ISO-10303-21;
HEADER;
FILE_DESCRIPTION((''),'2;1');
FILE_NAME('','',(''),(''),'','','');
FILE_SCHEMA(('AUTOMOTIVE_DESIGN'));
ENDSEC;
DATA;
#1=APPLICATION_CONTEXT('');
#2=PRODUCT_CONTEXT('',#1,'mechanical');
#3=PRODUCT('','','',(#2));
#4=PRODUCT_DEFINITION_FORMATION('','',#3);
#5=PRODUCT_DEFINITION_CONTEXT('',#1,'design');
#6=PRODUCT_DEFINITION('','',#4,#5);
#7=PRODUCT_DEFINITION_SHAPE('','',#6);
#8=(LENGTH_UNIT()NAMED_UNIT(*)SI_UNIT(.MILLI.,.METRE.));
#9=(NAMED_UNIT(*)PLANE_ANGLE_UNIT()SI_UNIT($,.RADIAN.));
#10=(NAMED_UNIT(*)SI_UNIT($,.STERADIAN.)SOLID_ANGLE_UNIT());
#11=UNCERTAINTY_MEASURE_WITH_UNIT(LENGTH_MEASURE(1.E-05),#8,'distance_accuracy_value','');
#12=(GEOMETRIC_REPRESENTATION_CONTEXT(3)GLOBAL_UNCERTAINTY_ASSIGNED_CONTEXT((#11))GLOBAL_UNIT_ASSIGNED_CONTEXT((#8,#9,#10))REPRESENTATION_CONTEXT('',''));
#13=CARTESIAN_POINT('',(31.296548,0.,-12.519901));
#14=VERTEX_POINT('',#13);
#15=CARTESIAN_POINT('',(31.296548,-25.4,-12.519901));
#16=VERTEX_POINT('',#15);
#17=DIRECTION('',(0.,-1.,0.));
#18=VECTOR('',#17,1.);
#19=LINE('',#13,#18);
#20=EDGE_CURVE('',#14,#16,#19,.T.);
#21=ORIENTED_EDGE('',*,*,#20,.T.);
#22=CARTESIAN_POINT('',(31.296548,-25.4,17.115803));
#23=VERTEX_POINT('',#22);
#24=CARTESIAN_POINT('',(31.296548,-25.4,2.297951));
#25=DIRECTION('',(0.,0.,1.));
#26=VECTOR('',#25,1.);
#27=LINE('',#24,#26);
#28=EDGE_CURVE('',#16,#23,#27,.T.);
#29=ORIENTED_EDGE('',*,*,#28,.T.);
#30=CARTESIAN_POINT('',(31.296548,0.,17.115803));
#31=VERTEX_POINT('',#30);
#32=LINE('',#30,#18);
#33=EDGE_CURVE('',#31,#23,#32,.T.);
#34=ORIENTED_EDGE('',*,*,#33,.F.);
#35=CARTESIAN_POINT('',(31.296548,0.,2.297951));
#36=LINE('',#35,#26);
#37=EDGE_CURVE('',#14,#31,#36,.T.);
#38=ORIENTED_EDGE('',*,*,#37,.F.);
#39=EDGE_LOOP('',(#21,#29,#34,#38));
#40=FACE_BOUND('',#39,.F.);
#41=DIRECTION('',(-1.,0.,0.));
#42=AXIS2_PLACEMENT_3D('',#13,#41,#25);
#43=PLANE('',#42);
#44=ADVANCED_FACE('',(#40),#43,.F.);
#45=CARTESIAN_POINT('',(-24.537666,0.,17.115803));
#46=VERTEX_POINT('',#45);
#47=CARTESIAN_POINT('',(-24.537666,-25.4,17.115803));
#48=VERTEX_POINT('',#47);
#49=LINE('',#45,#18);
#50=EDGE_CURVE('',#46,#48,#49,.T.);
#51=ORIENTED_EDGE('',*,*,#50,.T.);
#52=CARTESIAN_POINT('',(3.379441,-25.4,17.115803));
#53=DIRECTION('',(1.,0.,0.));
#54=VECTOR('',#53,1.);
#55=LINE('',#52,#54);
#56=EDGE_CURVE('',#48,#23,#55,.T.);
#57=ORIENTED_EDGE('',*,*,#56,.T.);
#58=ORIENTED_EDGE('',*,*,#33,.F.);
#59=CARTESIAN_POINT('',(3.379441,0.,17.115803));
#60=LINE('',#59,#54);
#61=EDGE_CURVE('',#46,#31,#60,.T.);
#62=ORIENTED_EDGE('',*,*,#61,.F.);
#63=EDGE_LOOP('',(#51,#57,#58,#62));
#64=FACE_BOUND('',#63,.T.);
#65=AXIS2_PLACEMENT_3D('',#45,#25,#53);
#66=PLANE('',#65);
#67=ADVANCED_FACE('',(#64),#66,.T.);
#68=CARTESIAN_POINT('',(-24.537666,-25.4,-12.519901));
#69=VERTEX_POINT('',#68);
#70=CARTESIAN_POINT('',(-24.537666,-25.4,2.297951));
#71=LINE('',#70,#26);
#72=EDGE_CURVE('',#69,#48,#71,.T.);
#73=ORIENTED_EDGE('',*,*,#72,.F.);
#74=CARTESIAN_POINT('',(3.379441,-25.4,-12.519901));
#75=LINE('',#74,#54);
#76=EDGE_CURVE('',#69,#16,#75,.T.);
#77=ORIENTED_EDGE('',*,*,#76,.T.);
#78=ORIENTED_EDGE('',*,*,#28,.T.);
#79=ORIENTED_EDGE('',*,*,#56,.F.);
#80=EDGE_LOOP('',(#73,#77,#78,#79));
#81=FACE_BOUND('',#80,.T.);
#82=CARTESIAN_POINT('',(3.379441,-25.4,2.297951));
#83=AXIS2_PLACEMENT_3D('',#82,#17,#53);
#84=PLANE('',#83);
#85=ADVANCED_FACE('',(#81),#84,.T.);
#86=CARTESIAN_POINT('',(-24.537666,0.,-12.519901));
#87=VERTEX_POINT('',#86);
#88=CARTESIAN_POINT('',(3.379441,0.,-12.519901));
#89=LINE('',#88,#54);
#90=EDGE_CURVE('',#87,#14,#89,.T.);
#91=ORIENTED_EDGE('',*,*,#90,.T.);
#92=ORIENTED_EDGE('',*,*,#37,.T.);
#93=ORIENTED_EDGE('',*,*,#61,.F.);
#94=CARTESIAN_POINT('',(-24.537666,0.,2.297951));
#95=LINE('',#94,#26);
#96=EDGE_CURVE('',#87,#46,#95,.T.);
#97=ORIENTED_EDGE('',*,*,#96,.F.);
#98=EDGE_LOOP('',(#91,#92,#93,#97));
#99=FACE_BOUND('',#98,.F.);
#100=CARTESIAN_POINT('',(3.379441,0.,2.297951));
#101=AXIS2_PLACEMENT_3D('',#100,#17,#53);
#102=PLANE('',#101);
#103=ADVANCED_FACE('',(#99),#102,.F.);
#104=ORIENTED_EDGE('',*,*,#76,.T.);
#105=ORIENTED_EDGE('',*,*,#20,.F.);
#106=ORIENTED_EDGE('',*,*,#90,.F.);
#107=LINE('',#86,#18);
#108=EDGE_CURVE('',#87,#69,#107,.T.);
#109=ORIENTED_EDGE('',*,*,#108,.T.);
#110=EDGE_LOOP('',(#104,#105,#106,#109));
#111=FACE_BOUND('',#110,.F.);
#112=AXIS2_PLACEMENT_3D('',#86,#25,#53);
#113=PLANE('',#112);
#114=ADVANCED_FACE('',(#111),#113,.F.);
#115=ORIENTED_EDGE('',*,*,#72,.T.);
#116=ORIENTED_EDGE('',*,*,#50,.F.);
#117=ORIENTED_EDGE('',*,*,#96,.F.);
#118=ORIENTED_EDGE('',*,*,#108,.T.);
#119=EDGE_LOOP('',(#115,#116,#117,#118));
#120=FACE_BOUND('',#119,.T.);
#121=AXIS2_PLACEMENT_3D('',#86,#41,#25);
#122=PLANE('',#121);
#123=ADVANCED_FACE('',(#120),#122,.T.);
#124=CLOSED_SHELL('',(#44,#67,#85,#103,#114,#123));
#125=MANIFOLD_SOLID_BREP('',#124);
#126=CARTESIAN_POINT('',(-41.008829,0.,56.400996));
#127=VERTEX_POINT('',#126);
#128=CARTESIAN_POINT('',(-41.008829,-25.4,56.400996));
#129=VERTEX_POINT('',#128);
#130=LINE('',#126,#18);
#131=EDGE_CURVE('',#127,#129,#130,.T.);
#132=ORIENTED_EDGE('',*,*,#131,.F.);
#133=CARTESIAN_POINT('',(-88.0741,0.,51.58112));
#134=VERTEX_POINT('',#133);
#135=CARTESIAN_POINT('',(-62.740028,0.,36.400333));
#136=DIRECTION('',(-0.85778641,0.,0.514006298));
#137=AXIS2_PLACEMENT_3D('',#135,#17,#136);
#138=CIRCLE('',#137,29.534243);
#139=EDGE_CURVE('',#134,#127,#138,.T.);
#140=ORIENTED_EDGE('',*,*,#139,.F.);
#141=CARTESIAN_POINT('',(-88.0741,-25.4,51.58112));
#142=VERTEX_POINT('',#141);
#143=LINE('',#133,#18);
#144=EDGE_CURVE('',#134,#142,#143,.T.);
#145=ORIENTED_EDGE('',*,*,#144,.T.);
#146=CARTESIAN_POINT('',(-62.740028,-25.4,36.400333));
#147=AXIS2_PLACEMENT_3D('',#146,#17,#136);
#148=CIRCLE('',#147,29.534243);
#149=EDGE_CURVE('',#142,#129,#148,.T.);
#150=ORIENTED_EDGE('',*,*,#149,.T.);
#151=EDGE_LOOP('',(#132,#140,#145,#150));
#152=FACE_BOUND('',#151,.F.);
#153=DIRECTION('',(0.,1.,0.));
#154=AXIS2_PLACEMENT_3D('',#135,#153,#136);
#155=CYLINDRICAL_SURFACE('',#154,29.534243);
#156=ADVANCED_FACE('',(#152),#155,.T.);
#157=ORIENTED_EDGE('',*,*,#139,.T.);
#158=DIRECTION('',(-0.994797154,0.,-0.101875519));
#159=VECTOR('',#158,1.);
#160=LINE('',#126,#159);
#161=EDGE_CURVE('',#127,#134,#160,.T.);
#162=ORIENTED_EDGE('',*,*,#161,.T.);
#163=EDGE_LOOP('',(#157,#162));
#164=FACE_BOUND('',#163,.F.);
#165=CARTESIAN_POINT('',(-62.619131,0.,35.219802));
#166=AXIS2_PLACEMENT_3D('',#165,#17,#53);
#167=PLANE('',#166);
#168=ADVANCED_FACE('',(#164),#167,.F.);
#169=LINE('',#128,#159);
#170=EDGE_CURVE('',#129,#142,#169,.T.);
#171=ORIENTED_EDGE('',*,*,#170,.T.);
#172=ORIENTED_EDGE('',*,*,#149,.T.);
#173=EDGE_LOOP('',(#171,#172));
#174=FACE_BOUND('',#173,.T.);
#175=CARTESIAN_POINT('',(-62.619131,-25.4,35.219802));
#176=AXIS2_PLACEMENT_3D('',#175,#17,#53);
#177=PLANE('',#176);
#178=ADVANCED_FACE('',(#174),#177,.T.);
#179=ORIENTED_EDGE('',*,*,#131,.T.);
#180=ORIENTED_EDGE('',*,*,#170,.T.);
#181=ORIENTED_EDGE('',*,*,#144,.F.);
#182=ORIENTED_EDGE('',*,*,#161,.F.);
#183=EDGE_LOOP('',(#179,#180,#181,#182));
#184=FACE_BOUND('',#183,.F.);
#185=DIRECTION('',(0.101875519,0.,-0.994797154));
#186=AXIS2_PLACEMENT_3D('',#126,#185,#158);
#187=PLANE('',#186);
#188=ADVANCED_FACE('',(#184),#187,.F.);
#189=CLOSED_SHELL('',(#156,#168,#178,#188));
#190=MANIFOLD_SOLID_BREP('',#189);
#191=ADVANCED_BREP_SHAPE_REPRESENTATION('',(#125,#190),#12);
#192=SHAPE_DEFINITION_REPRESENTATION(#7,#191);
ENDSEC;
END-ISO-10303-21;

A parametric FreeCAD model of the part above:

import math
import FreeCAD as App
import Part
import Sketcher
from FreeCAD import Vector
Q = App.Units.Quantity


def add_polygon(sketch, points):
    """Adds a closed chain of lines whose ends are joined by coincident constraints."""
    first, n = sketch.GeometryCount, len(points)
    for a, b in zip(points, points[1:] + points[:1]):
        sketch.addGeometry(Part.LineSegment(App.Vector(*a, 0), App.Vector(*b, 0)), False)
    for i in range(n):
        sketch.addConstraint(Sketcher.Constraint("Coincident", first + i, 2, first + (i + 1) % n, 1))

doc = App.newDocument("Part")
body = doc.addObject("PartDesign::Body", "Body")
body.AllowCompound = True

# Sketch on XZ plane
sketch1 = doc.addObject("Sketcher::SketchObject", "Sketch")
body.addObject(sketch1)
sketch1.AttachmentSupport = (doc.XZ_Plane, [""])
sketch1.MapMode = "FlatFace"
sketch1.addGeometry(Part.LineSegment(Vector(-41, 56, 0), Vector(-88, 52, 0)), False)  # 0
sketch1.addGeometry(Part.ArcOfCircle(Part.Circle(Vector(-63, 36, 0), Vector(0, 0, 1), 30), math.radians(149), math.radians(403)), False)  # 1
add_polygon(sketch1, [(-25, 17), (-25, -13), (31, -13), (31, 17)])  # lines 2-5
sketch1.addConstraint([
    Sketcher.Constraint("Coincident", 0, 1, 1, 2),
    Sketcher.Constraint("Coincident", 1, 1, 0, 2),
    Sketcher.Constraint("Vertical", 2),
    Sketcher.Constraint("Horizontal", 3),
    Sketcher.Constraint("Vertical", 4),
    Sketcher.Constraint("Horizontal", 5),
    Sketcher.Constraint("Radius", 1, Q("29.534243 mm")),
    Sketcher.Constraint("DistanceX", 1, 1, -1, 1, Q("88.0741 mm")),
    Sketcher.Constraint("DistanceY", 2, 2, -1, 1, Q("12.519901 mm")),
    Sketcher.Constraint("DistanceX", 1, 3, 0, 1, Q("21.731199 mm")),
    Sketcher.Constraint("DistanceX", 3, 1, 3, 2, Q("55.834214 mm")),
    Sketcher.Constraint("DistanceY", 2, 2, 2, 1, Q("29.635703 mm")),
    Sketcher.Constraint("DistanceX", 0, 1, -1, 1, Q("41.008829 mm")),
    Sketcher.Constraint("DistanceY", -1, 1, 1, 1, Q("51.58112 mm")),
    Sketcher.Constraint("DistanceX", -1, 1, 3, 2, Q("31.296548 mm")),
])
pad1 = doc.addObject("PartDesign::Pad", "Pad")
body.addObject(pad1)
pad1.Profile = sketch1
pad1.Length = Q("1 in")

doc.recompute()
